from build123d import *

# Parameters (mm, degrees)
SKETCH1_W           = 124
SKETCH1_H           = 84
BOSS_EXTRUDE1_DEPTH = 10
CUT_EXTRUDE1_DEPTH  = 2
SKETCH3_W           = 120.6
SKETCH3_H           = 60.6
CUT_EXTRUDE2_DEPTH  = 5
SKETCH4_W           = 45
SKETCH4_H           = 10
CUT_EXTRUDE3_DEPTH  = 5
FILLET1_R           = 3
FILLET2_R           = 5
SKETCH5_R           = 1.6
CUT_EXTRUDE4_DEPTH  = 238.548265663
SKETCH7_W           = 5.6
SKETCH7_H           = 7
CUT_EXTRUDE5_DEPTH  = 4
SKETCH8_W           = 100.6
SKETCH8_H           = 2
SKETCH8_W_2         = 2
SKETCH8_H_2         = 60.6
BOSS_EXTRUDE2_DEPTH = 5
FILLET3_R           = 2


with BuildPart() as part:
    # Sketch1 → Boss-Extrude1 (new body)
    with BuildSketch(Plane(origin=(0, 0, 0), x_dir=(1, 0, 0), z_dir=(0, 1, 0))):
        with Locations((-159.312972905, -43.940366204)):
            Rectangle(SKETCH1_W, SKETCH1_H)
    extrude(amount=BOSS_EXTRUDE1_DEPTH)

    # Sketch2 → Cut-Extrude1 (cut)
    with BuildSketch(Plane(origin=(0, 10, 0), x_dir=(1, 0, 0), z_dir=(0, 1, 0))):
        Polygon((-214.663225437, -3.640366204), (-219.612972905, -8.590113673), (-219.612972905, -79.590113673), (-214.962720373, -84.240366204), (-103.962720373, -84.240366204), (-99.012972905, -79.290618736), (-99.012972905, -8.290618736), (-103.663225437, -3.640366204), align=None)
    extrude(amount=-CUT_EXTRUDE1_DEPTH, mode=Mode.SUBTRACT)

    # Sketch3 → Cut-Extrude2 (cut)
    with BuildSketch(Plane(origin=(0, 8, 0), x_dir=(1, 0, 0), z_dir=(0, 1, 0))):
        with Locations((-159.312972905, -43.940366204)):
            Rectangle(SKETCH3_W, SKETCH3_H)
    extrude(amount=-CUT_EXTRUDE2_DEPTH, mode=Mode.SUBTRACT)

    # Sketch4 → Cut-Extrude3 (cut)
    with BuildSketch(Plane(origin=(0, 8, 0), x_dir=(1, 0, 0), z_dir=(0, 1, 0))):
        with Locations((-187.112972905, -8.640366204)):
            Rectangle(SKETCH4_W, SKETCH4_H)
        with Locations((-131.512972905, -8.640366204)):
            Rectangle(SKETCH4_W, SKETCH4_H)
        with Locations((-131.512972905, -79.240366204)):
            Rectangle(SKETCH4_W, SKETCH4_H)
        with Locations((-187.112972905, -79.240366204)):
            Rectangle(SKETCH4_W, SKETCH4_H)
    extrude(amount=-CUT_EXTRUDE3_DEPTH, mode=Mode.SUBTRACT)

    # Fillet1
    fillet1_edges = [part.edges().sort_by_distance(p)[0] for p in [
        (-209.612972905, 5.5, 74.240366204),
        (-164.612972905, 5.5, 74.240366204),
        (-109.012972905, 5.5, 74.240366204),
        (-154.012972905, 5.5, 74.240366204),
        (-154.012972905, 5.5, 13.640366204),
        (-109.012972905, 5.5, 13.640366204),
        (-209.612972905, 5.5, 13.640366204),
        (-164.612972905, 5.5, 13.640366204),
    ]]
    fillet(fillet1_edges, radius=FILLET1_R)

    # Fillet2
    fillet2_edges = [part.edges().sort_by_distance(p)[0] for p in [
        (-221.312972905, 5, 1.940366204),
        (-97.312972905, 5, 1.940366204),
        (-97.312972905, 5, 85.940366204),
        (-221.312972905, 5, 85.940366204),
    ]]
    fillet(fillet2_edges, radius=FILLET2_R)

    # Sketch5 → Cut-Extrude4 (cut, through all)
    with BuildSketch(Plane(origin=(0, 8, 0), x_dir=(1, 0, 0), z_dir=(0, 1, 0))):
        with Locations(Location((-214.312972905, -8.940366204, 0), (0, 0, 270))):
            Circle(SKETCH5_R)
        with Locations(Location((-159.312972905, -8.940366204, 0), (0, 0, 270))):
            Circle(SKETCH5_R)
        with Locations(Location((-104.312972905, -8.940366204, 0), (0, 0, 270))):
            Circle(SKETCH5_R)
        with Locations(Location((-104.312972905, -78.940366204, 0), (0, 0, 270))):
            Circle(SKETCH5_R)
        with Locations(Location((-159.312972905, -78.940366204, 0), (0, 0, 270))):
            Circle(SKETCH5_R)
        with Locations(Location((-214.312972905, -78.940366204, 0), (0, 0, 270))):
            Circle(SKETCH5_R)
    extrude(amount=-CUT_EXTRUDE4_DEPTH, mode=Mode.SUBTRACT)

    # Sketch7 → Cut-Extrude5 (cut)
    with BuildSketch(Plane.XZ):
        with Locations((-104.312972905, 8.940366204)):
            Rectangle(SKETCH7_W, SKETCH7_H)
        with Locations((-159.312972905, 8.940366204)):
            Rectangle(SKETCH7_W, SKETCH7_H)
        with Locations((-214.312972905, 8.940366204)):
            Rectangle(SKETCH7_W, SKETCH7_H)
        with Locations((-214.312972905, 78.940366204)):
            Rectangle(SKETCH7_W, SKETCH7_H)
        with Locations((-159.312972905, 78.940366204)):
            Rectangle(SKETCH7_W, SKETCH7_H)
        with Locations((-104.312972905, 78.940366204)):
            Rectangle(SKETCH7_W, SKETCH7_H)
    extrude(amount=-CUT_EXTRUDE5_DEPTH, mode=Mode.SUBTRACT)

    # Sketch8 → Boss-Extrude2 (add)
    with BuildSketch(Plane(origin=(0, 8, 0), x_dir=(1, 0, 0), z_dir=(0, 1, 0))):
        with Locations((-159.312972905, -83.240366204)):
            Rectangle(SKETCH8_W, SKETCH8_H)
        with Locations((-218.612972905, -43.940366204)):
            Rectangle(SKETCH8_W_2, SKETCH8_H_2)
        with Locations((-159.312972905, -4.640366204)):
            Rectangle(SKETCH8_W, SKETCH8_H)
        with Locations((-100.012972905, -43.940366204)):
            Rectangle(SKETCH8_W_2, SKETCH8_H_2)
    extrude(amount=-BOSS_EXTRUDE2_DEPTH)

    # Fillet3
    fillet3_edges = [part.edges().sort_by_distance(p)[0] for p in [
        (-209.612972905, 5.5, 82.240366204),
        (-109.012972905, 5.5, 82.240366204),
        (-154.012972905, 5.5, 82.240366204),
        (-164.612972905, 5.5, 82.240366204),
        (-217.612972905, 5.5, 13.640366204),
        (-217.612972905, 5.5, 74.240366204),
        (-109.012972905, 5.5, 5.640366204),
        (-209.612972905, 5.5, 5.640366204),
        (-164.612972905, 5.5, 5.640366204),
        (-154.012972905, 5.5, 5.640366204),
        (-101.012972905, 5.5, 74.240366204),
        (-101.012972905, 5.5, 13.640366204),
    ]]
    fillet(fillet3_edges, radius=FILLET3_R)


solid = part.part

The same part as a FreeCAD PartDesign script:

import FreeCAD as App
import Part
import Sketcher
from FreeCAD import Vector
Q = App.Units.Quantity


def edges_at(feature, points):
    """Names of the edges that pass closest to the given points."""
    edges = feature.Shape.Edges
    near = lambda p: min(range(len(edges)), key=lambda i: edges[i].distToShape(Part.Vertex(*p))[0])
    return sorted({f"Edge{near(p) + 1}" for p in points})

doc = App.newDocument("Part")
body = doc.addObject("PartDesign::Body", "Body")

sketch1 = body.newObject("Sketcher::SketchObject", "Sketch")
sketch1.AttachmentSupport = (doc.getObject("XZ_Plane"), [""])
sketch1.MapMode = "FlatFace"
sketch1.addGeometry([
    Part.LineSegment(Vector(-221, 2, 0), Vector(-221, 86, 0)),
    Part.LineSegment(Vector(-221, 86, 0), Vector(-97, 86, 0)),
    Part.LineSegment(Vector(-97, 86, 0), Vector(-97, 2, 0)),
    Part.LineSegment(Vector(-97, 2, 0), Vector(-221, 2, 0)),
], False)
sketch1.addConstraint([
    Sketcher.Constraint("Coincident", 0, 2, 1, 1),
    Sketcher.Constraint("Coincident", 1, 2, 2, 1),
    Sketcher.Constraint("Coincident", 2, 2, 3, 1),
    Sketcher.Constraint("Coincident", 3, 2, 0, 1),
    Sketcher.Constraint("Vertical", 0),
    Sketcher.Constraint("Horizontal", 1),
    Sketcher.Constraint("Vertical", 2),
    Sketcher.Constraint("Horizontal", 3),
    Sketcher.Constraint("DistanceX", 1, 1, 1, 2, 124.0),
    Sketcher.Constraint("DistanceY", 0, 1, 0, 2, 84.0),
    Sketcher.Constraint("DistanceX", 0, 2, -1, 1, 221.312973),
    Sketcher.Constraint("DistanceY", -1, 1, 0, 2, 85.940366),
])
pad1 = body.newObject("PartDesign::Pad", "Pad")
pad1.Profile = sketch1
pad1.Length = 10
pad1.Reversed = True

sketch2 = body.newObject("Sketcher::SketchObject", "Sketch001")
sketch2.AttachmentSupport = (doc.getObject("XZ_Plane"), [""])
sketch2.MapMode = "FlatFace"
sketch2.AttachmentOffset = App.Placement(Vector(0, 0, -10), App.Rotation())
sketch2.addGeometry([
    Part.LineSegment(Vector(-215, 4, 0), Vector(-220, 9, 0)),
    Part.LineSegment(Vector(-220, 9, 0), Vector(-220, 80, 0)),
    Part.LineSegment(Vector(-220, 80, 0), Vector(-215, 84, 0)),
    Part.LineSegment(Vector(-215, 84, 0), Vector(-104, 84, 0)),
    Part.LineSegment(Vector(-104, 84, 0), Vector(-99, 79, 0)),
    Part.LineSegment(Vector(-99, 79, 0), Vector(-99, 8, 0)),
    Part.LineSegment(Vector(-99, 8, 0), Vector(-104, 4, 0)),
    Part.LineSegment(Vector(-104, 4, 0), Vector(-215, 4, 0)),
], False)
sketch2.addConstraint([
    Sketcher.Constraint("Coincident", 0, 2, 1, 1),
    Sketcher.Constraint("Coincident", 1, 2, 2, 1),
    Sketcher.Constraint("Coincident", 2, 2, 3, 1),
    Sketcher.Constraint("Coincident", 3, 2, 4, 1),
    Sketcher.Constraint("Coincident", 4, 2, 5, 1),
    Sketcher.Constraint("Coincident", 5, 2, 6, 1),
    Sketcher.Constraint("Coincident", 6, 2, 7, 1),
    Sketcher.Constraint("Coincident", 7, 2, 0, 1),
    Sketcher.Constraint("Vertical", 1),
    Sketcher.Constraint("Horizontal", 3),
    Sketcher.Constraint("Vertical", 5),
    Sketcher.Constraint("Horizontal", 7),
    Sketcher.Constraint("Perpendicular", 0, 2),
    Sketcher.Constraint("Perpendicular", 2, 4),
    Sketcher.Constraint("Perpendicular", 4, 6),
    Sketcher.Constraint("Equal", 3, 7),
    Sketcher.Constraint("Equal", 1, 5),
    Sketcher.Constraint("DistanceX", 3, 1, 3, 2, 111.0),
    Sketcher.Constraint("DistanceY", 1, 1, 1, 2, 71.0),
    Sketcher.Constraint("Angle", 0, Q("135 deg")),
    Sketcher.Constraint("Distance", 0, 7.0),
    Sketcher.Constraint("DistanceX", 1, 2, 4, 2, 120.6),
    Sketcher.Constraint("DistanceX", 2, 2, -1, 1, 214.96272),
    Sketcher.Constraint("DistanceY", -1, 1, 4, 2, 79.290619),
])
pocket1 = body.newObject("PartDesign::Pocket", "Pocket")
pocket1.Profile = sketch2
pocket1.Length = 2
pocket1.Reversed = True

sketch3 = body.newObject("Sketcher::SketchObject", "Sketch002")
sketch3.AttachmentSupport = (doc.getObject("XZ_Plane"), [""])
sketch3.MapMode = "FlatFace"
sketch3.AttachmentOffset = App.Placement(Vector(0, 0, -8), App.Rotation())
sketch3.addGeometry([
    Part.LineSegment(Vector(-220, 14, 0), Vector(-220, 74, 0)),
    Part.LineSegment(Vector(-220, 74, 0), Vector(-99, 74, 0)),
    Part.LineSegment(Vector(-99, 74, 0), Vector(-99, 14, 0)),
    Part.LineSegment(Vector(-99, 14, 0), Vector(-220, 14, 0)),
], False)
sketch3.addConstraint([
    Sketcher.Constraint("Coincident", 0, 2, 1, 1),
    Sketcher.Constraint("Coincident", 1, 2, 2, 1),
    Sketcher.Constraint("Coincident", 2, 2, 3, 1),
    Sketcher.Constraint("Coincident", 3, 2, 0, 1),
    Sketcher.Constraint("Vertical", 0),
    Sketcher.Constraint("Horizontal", 1),
    Sketcher.Constraint("Vertical", 2),
    Sketcher.Constraint("Horizontal", 3),
    Sketcher.Constraint("DistanceX", 1, 1, 1, 2, 120.6),
    Sketcher.Constraint("DistanceY", 0, 1, 0, 2, 60.6),
    Sketcher.Constraint("DistanceX", 0, 2, -1, 1, 219.612973),
    Sketcher.Constraint("DistanceY", -1, 1, 0, 2, 74.240366),
])
pocket2 = body.newObject("PartDesign::Pocket", "Pocket001")
pocket2.Profile = sketch3
pocket2.Length = 5
pocket2.Reversed = True

sketch4 = body.newObject("Sketcher::SketchObject", "Sketch003")
sketch4.AttachmentSupport = (doc.getObject("XZ_Plane"), [""])
sketch4.MapMode = "FlatFace"
sketch4.AttachmentOffset = App.Placement(Vector(0, 0, -8), App.Rotation())
sketch4.addGeometry([
    Part.LineSegment(Vector(-210, 4, 0), Vector(-210, 14, 0)),
    Part.LineSegment(Vector(-210, 14, 0), Vector(-165, 14, 0)),
    Part.LineSegment(Vector(-165, 14, 0), Vector(-165, 4, 0)),
    Part.LineSegment(Vector(-165, 4, 0), Vector(-210, 4, 0)),
    Part.LineSegment(Vector(-154, 4, 0), Vector(-154, 14, 0)),
    Part.LineSegment(Vector(-154, 14, 0), Vector(-109, 14, 0)),
    Part.LineSegment(Vector(-109, 14, 0), Vector(-109, 4, 0)),
    Part.LineSegment(Vector(-109, 4, 0), Vector(-154, 4, 0)),
    Part.LineSegment(Vector(-154, 74, 0), Vector(-154, 84, 0)),
    Part.LineSegment(Vector(-154, 84, 0), Vector(-109, 84, 0)),
    Part.LineSegment(Vector(-109, 84, 0), Vector(-109, 74, 0)),
    Part.LineSegment(Vector(-109, 74, 0), Vector(-154, 74, 0)),
    Part.LineSegment(Vector(-210, 74, 0), Vector(-210, 84, 0)),
    Part.LineSegment(Vector(-210, 84, 0), Vector(-165, 84, 0)),
    Part.LineSegment(Vector(-165, 84, 0), Vector(-165, 74, 0)),
    Part.LineSegment(Vector(-165, 74, 0), Vector(-210, 74, 0)),
], False)
sketch4.addConstraint([
    Sketcher.Constraint("Coincident", 0, 2, 1, 1),
    Sketcher.Constraint("Coincident", 1, 2, 2, 1),
    Sketcher.Constraint("Coincident", 2, 2, 3, 1),
    Sketcher.Constraint("Coincident", 3, 2, 0, 1),
    Sketcher.Constraint("Coincident", 4, 2, 5, 1),
    Sketcher.Constraint("Coincident", 5, 2, 6, 1),
    Sketcher.Constraint("Coincident", 6, 2, 7, 1),
    Sketcher.Constraint("Coincident", 7, 2, 4, 1),
    Sketcher.Constraint("Coincident", 8, 2, 9, 1),
    Sketcher.Constraint("Coincident", 9, 2, 10, 1),
    Sketcher.Constraint("Coincident", 10, 2, 11, 1),
    Sketcher.Constraint("Coincident", 11, 2, 8, 1),
    Sketcher.Constraint("Coincident", 12, 2, 13, 1),
    Sketcher.Constraint("Coincident", 13, 2, 14, 1),
    Sketcher.Constraint("Coincident", 14, 2, 15, 1),
    Sketcher.Constraint("Coincident", 15, 2, 12, 1),
    Sketcher.Constraint("Vertical", 0),
    Sketcher.Constraint("Horizontal", 1),
    Sketcher.Constraint("Vertical", 2),
    Sketcher.Constraint("Horizontal", 3),
    Sketcher.Constraint("Vertical", 4),
    Sketcher.Constraint("Horizontal", 5),
    Sketcher.Constraint("Vertical", 6),
    Sketcher.Constraint("Horizontal", 7),
    Sketcher.Constraint("Vertical", 8),
    Sketcher.Constraint("Horizontal", 9),
    Sketcher.Constraint("Vertical", 10),
    Sketcher.Constraint("Horizontal", 11),
    Sketcher.Constraint("Vertical", 12),
    Sketcher.Constraint("Horizontal", 13),
    Sketcher.Constraint("Vertical", 14),
    Sketcher.Constraint("Horizontal", 15),
    Sketcher.Constraint("Horizontal", 1, 2, 4, 2),
    Sketcher.Constraint("Horizontal", 3, 2, 6, 2),
    Sketcher.Constraint("Horizontal", 9, 2, 12, 2),
    Sketcher.Constraint("Horizontal", 11, 2, 14, 2),
    Sketcher.Constraint("Vertical", 7, 2, 8, 2),
    Sketcher.Constraint("Vertical", 6, 2, 9, 2),
    Sketcher.Constraint("Vertical", 3, 2, 12, 2),
    Sketcher.Constraint("Vertical", 2, 2, 13, 2),
    Sketcher.Constraint("Equal", 3, 5),
    Sketcher.Constraint("Equal", 6, 8),
    Sketcher.Constraint("DistanceX", 1, 1, 1, 2, 45.0),
    Sketcher.Constraint("DistanceY", 0, 1, 0, 2, 10.0),
    Sketcher.Constraint("DistanceX", 1, 2, 4, 2, 10.6),
    Sketcher.Constraint("DistanceY", 4, 2, 8, 2, 70.6),
    Sketcher.Constraint("DistanceX", 0, 2, -1, 1, 209.612973),
    Sketcher.Constraint("DistanceY", -1, 1, 0, 2, 13.640366),
])
pocket3 = body.newObject("PartDesign::Pocket", "Pocket002")
pocket3.Profile = sketch4
pocket3.Length = 5
pocket3.Reversed = True
doc.recompute()

fillet = body.newObject("PartDesign::Fillet", "Fillet")
fillet.Base = (pocket3, edges_at(pocket3, [
    (-209.613, 5.5, 74.24),
    (-164.613, 5.5, 74.24),
    (-109.013, 5.5, 74.24),
    (-154.013, 5.5, 74.24),
    (-154.013, 5.5, 13.64),
    (-109.013, 5.5, 13.64),
    (-209.613, 5.5, 13.64),
    (-164.613, 5.5, 13.64),
]))
fillet.Radius = 3
doc.recompute()

fillet2 = body.newObject("PartDesign::Fillet", "Fillet001")
fillet2.Base = (fillet, edges_at(fillet, [
    (-221.313, 5, 1.94),
    (-97.313, 5, 1.94),
    (-97.313, 5, 85.94),
    (-221.313, 5, 85.94),
]))
fillet2.Radius = 5

sketch5 = body.newObject("Sketcher::SketchObject", "Sketch004")
sketch5.AttachmentSupport = (doc.getObject("XZ_Plane"), [""])
sketch5.MapMode = "FlatFace"
sketch5.AttachmentOffset = App.Placement(Vector(0, 0, -8), App.Rotation())
sketch5.addGeometry([
    Part.Circle(Vector(-214.3, 8.9, 0), Vector(0, 0, 1), 1.6),
    Part.Circle(Vector(-159.3, 8.9, 0), Vector(0, 0, 1), 1.6),
    Part.Circle(Vector(-104.3, 8.9, 0), Vector(0, 0, 1), 1.6),
    Part.Circle(Vector(-104.3, 78.9, 0), Vector(0, 0, 1), 1.6),
    Part.Circle(Vector(-159.3, 78.9, 0), Vector(0, 0, 1), 1.6),
    Part.Circle(Vector(-214.3, 78.9, 0), Vector(0, 0, 1), 1.6),
], False)
sketch5.addConstraint([
    Sketcher.Constraint("Equal", 0, 1),
    Sketcher.Constraint("Equal", 1, 2),
    Sketcher.Constraint("Equal", 2, 3),
    Sketcher.Constraint("Equal", 3, 4),
    Sketcher.Constraint("Equal", 4, 5),
    Sketcher.Constraint("Horizontal", 0, 3, 1, 3),
    Sketcher.Constraint("Horizontal", 1, 3, 2, 3),
    Sketcher.Constraint("Horizontal", 3, 3, 4, 3),
    Sketcher.Constraint("Horizontal", 4, 3, 5, 3),
    Sketcher.Constraint("Vertical", 2, 3, 3, 3),
    Sketcher.Constraint("Vertical", 1, 3, 4, 3),
    Sketcher.Constraint("Vertical", 0, 3, 5, 3),
    Sketcher.Constraint("Diameter", 0, 3.2),
    Sketcher.Constraint("DistanceX", 0, 3, 1, 3, 55.0),
    Sketcher.Constraint("DistanceX", 1, 3, 2, 3, 55.0),
    Sketcher.Constraint("DistanceY", 2, 3, 3, 3, 70.0),
    Sketcher.Constraint("DistanceX", 0, 3, -1, 1, 214.312973),
    Sketcher.Constraint("DistanceY", -1, 1, 0, 3, 8.940366),
])
pocket4 = body.newObject("PartDesign::Pocket", "Pocket003")
pocket4.Profile = sketch5
pocket4.Type = "ThroughAll"
pocket4.Reversed = True

sketch6 = body.newObject("Sketcher::SketchObject", "Sketch005")
sketch6.AttachmentSupport = (doc.getObject("XZ_Plane"), [""])
sketch6.MapMode = "FlatFace"
sketch6.addGeometry([
    Part.LineSegment(Vector(-107, 12, 0), Vector(-107, 5, 0)),
    Part.LineSegment(Vector(-107, 5, 0), Vector(-102, 5, 0)),
    Part.LineSegment(Vector(-102, 5, 0), Vector(-102, 12, 0)),
    Part.LineSegment(Vector(-102, 12, 0), Vector(-107, 12, 0)),
    Part.LineSegment(Vector(-162, 12, 0), Vector(-162, 5, 0)),
    Part.LineSegment(Vector(-162, 5, 0), Vector(-157, 5, 0)),
    Part.LineSegment(Vector(-157, 5, 0), Vector(-157, 12, 0)),
    Part.LineSegment(Vector(-157, 12, 0), Vector(-162, 12, 0)),
    Part.LineSegment(Vector(-217, 12, 0), Vector(-217, 5, 0)),
    Part.LineSegment(Vector(-217, 5, 0), Vector(-212, 5, 0)),
    Part.LineSegment(Vector(-212, 5, 0), Vector(-212, 12, 0)),
    Part.LineSegment(Vector(-212, 12, 0), Vector(-217, 12, 0)),
    Part.LineSegment(Vector(-217, 82, 0), Vector(-217, 75, 0)),
    Part.LineSegment(Vector(-217, 75, 0), Vector(-212, 75, 0)),
    Part.LineSegment(Vector(-212, 75, 0), Vector(-212, 82, 0)),
    Part.LineSegment(Vector(-212, 82, 0), Vector(-217, 82, 0)),
    Part.LineSegment(Vector(-162, 82, 0), Vector(-162, 75, 0)),
    Part.LineSegment(Vector(-162, 75, 0), Vector(-157, 75, 0)),
    Part.LineSegment(Vector(-157, 75, 0), Vector(-157, 82, 0)),
    Part.LineSegment(Vector(-157, 82, 0), Vector(-162, 82, 0)),
    Part.LineSegment(Vector(-107, 82, 0), Vector(-107, 75, 0)),
    Part.LineSegment(Vector(-107, 75, 0), Vector(-102, 75, 0)),
    Part.LineSegment(Vector(-102, 75, 0), Vector(-102, 82, 0)),
    Part.LineSegment(Vector(-102, 82, 0), Vector(-107, 82, 0)),
], False)
sketch6.addConstraint([
    Sketcher.Constraint("Coincident", 0, 2, 1, 1),
    Sketcher.Constraint("Coincident", 1, 2, 2, 1),
    Sketcher.Constraint("Coincident", 2, 2, 3, 1),
    Sketcher.Constraint("Coincident", 3, 2, 0, 1),
    Sketcher.Constraint("Coincident", 4, 2, 5, 1),
    Sketcher.Constraint("Coincident", 5, 2, 6, 1),
    Sketcher.Constraint("Coincident", 6, 2, 7, 1),
    Sketcher.Constraint("Coincident", 7, 2, 4, 1),
    Sketcher.Constraint("Coincident", 8, 2, 9, 1),
    Sketcher.Constraint("Coincident", 9, 2, 10, 1),
    Sketcher.Constraint("Coincident", 10, 2, 11, 1),
    Sketcher.Constraint("Coincident", 11, 2, 8, 1),
    Sketcher.Constraint("Coincident", 12, 2, 13, 1),
    Sketcher.Constraint("Coincident", 13, 2, 14, 1),
    Sketcher.Constraint("Coincident", 14, 2, 15, 1),
    Sketcher.Constraint("Coincident", 15, 2, 12, 1),
    Sketcher.Constraint("Coincident", 16, 2, 17, 1),
    Sketcher.Constraint("Coincident", 17, 2, 18, 1),
    Sketcher.Constraint("Coincident", 18, 2, 19, 1),
    Sketcher.Constraint("Coincident", 19, 2, 16, 1),
    Sketcher.Constraint("Coincident", 20, 2, 21, 1),
    Sketcher.Constraint("Coincident", 21, 2, 22, 1),
    Sketcher.Constraint("Coincident", 22, 2, 23, 1),
    Sketcher.Constraint("Coincident", 23, 2, 20, 1),
    Sketcher.Constraint("Vertical", 0),
    Sketcher.Constraint("Horizontal", 1),
    Sketcher.Constraint("Vertical", 2),
    Sketcher.Constraint("Horizontal", 3),
    Sketcher.Constraint("Vertical", 4),
    Sketcher.Constraint("Horizontal", 5),
    Sketcher.Constraint("Vertical", 6),
    Sketcher.Constraint("Horizontal", 7),
    Sketcher.Constraint("Vertical", 8),
    Sketcher.Constraint("Horizontal", 9),
    Sketcher.Constraint("Vertical", 10),
    Sketcher.Constraint("Horizontal", 11),
    Sketcher.Constraint("Vertical", 12),
    Sketcher.Constraint("Horizontal", 13),
    Sketcher.Constraint("Vertical", 14),
    Sketcher.Constraint("Horizontal", 15),
    Sketcher.Constraint("Vertical", 16),
    Sketcher.Constraint("Horizontal", 17),
    Sketcher.Constraint("Vertical", 18),
    Sketcher.Constraint("Horizontal", 19),
    Sketcher.Constraint("Vertical", 20),
    Sketcher.Constraint("Horizontal", 21),
    Sketcher.Constraint("Vertical", 22),
    Sketcher.Constraint("Horizontal", 23),
    Sketcher.Constraint("Horizontal", 1, 2, 4, 2),
    Sketcher.Constraint("Horizontal", 3, 2, 6, 2),
    Sketcher.Constraint("Horizontal", 5, 2, 8, 2),
    Sketcher.Constraint("Horizontal", 7, 2, 10, 2),
    Sketcher.Constraint("Horizontal", 13, 2, 16, 2),
    Sketcher.Constraint("Horizontal", 15, 2, 18, 2),
    Sketcher.Constraint("Horizontal", 17, 2, 20, 2),
    Sketcher.Constraint("Horizontal", 19, 2, 22, 2),
    Sketcher.Constraint("Vertical", 11, 2, 12, 2),
    Sketcher.Constraint("Vertical", 10, 2, 13, 2),
    Sketcher.Constraint("Vertical", 7, 2, 16, 2),
    Sketcher.Constraint("Vertical", 6, 2, 17, 2),
    Sketcher.Constraint("Vertical", 3, 2, 20, 2),
    Sketcher.Constraint("Vertical", 2, 2, 21, 2),
    Sketcher.Constraint("Equal", 3, 5),
    Sketcher.Constraint("Equal", 7, 9),
    Sketcher.Constraint("Equal", 10, 12),
    Sketcher.Constraint("DistanceY", 0, 2, 0, 1, 7.0),
    Sketcher.Constraint("DistanceX", 1, 1, 1, 2, 5.6),
    Sketcher.Constraint("DistanceX", 4, 2, 0, 2, 55.0),
    Sketcher.Constraint("DistanceX", 8, 2, 4, 2, 55.0),
    Sketcher.Constraint("DistanceY", 11, 2, 12, 2, 63.0),
    Sketcher.Constraint("DistanceX", 0, 2, -1, 1, 107.112973),
    Sketcher.Constraint("DistanceY", -1, 1, 0, 2, 5.440366),
])
pocket5 = body.newObject("PartDesign::Pocket", "Pocket004")
pocket5.Profile = sketch6
pocket5.Length = 4

sketch7 = body.newObject("Sketcher::SketchObject", "Sketch006")
sketch7.AttachmentSupport = (doc.getObject("XZ_Plane"), [""])
sketch7.MapMode = "FlatFace"
sketch7.AttachmentOffset = App.Placement(Vector(0, 0, -8), App.Rotation())
sketch7.addGeometry([
    Part.LineSegment(Vector(-209.6, 82.2, 0), Vector(-209.6, 84.2, 0)),
    Part.LineSegment(Vector(-209.6, 84.2, 0), Vector(-109, 84.2, 0)),
    Part.LineSegment(Vector(-109, 84.2, 0), Vector(-109, 82.2, 0)),
    Part.LineSegment(Vector(-109, 82.2, 0), Vector(-209.6, 82.2, 0)),
    Part.LineSegment(Vector(-219.6, 13.6, 0), Vector(-219.6, 74.2, 0)),
    Part.LineSegment(Vector(-219.6, 74.2, 0), Vector(-217.6, 74.2, 0)),
    Part.LineSegment(Vector(-217.6, 74.2, 0), Vector(-217.6, 13.6, 0)),
    Part.LineSegment(Vector(-217.6, 13.6, 0), Vector(-219.6, 13.6, 0)),
    Part.LineSegment(Vector(-209.6, 3.6, 0), Vector(-209.6, 5.6, 0)),
    Part.LineSegment(Vector(-209.6, 5.6, 0), Vector(-109, 5.6, 0)),
    Part.LineSegment(Vector(-109, 5.6, 0), Vector(-109, 3.6, 0)),
    Part.LineSegment(Vector(-109, 3.6, 0), Vector(-209.6, 3.6, 0)),
    Part.LineSegment(Vector(-101, 13.6, 0), Vector(-101, 74.2, 0)),
    Part.LineSegment(Vector(-101, 74.2, 0), Vector(-99, 74.2, 0)),
    Part.LineSegment(Vector(-99, 74.2, 0), Vector(-99, 13.6, 0)),
    Part.LineSegment(Vector(-99, 13.6, 0), Vector(-101, 13.6, 0)),
], False)
sketch7.addConstraint([
    Sketcher.Constraint("Coincident", 0, 2, 1, 1),
    Sketcher.Constraint("Coincident", 1, 2, 2, 1),
    Sketcher.Constraint("Coincident", 2, 2, 3, 1),
    Sketcher.Constraint("Coincident", 3, 2, 0, 1),
    Sketcher.Constraint("Coincident", 4, 2, 5, 1),
    Sketcher.Constraint("Coincident", 5, 2, 6, 1),
    Sketcher.Constraint("Coincident", 6, 2, 7, 1),
    Sketcher.Constraint("Coincident", 7, 2, 4, 1),
    Sketcher.Constraint("Coincident", 8, 2, 9, 1),
    Sketcher.Constraint("Coincident", 9, 2, 10, 1),
    Sketcher.Constraint("Coincident", 10, 2, 11, 1),
    Sketcher.Constraint("Coincident", 11, 2, 8, 1),
    Sketcher.Constraint("Coincident", 12, 2, 13, 1),
    Sketcher.Constraint("Coincident", 13, 2, 14, 1),
    Sketcher.Constraint("Coincident", 14, 2, 15, 1),
    Sketcher.Constraint("Coincident", 15, 2, 12, 1),
    Sketcher.Constraint("Vertical", 0),
    Sketcher.Constraint("Horizontal", 1),
    Sketcher.Constraint("Vertical", 2),
    Sketcher.Constraint("Horizontal", 3),
    Sketcher.Constraint("Vertical", 4),
    Sketcher.Constraint("Horizontal", 5),
    Sketcher.Constraint("Vertical", 6),
    Sketcher.Constraint("Horizontal", 7),
    Sketcher.Constraint("Vertical", 8),
    Sketcher.Constraint("Horizontal", 9),
    Sketcher.Constraint("Vertical", 10),
    Sketcher.Constraint("Horizontal", 11),
    Sketcher.Constraint("Vertical", 12),
    Sketcher.Constraint("Horizontal", 13),
    Sketcher.Constraint("Vertical", 14),
    Sketcher.Constraint("Horizontal", 15),
    Sketcher.Constraint("Horizontal", 5, 2, 12, 2),
    Sketcher.Constraint("Horizontal", 7, 2, 14, 2),
    Sketcher.Constraint("Vertical", 3, 2, 8, 2),
    Sketcher.Constraint("Vertical", 2, 2, 9, 2),
    Sketcher.Constraint("Equal", 7, 13),
    Sketcher.Constraint("Equal", 15, 0),
    Sketcher.Constraint("Equal", 2, 8),
    Sketcher.Constraint("DistanceX", 5, 1, 5, 2, 2.0),
    Sketcher.Constraint("DistanceX", 1, 1, 1, 2, 100.6),
    Sketcher.Constraint("DistanceY", 4, 1, 4, 2, 60.6),
    Sketcher.Constraint("DistanceX", 4, 2, 3, 2, 10.0),
    Sketcher.Constraint("DistanceY", 4, 2, 3, 2, 8.0),
    Sketcher.Constraint("DistanceY", 8, 2, 6, 2, 8.0),
    Sketcher.Constraint("DistanceX", 2, 2, 12, 2, 8.0),
    Sketcher.Constraint("DistanceX", 0, 2, -1, 1, 209.612973),
    Sketcher.Constraint("DistanceY", -1, 1, 0, 2, 84.240366),
])
pad2 = body.newObject("PartDesign::Pad", "Pad001")
pad2.Profile = sketch7
pad2.Length = 5
doc.recompute()

fillet3 = body.newObject("PartDesign::Fillet", "Fillet002")
fillet3.Base = (pad2, edges_at(pad2, [
    (-209.613, 5.5, 82.24),
    (-109.013, 5.5, 82.24),
    (-154.013, 5.5, 82.24),
    (-164.613, 5.5, 82.24),
    (-217.613, 5.5, 13.64),
    (-217.613, 5.5, 74.24),
    (-109.013, 5.5, 5.64),
    (-209.613, 5.5, 5.64),
    (-164.613, 5.5, 5.64),
    (-154.013, 5.5, 5.64),
    (-101.013, 5.5, 74.24),
    (-101.013, 5.5, 13.64),
]))
fillet3.Radius = 2

doc.recompute()
